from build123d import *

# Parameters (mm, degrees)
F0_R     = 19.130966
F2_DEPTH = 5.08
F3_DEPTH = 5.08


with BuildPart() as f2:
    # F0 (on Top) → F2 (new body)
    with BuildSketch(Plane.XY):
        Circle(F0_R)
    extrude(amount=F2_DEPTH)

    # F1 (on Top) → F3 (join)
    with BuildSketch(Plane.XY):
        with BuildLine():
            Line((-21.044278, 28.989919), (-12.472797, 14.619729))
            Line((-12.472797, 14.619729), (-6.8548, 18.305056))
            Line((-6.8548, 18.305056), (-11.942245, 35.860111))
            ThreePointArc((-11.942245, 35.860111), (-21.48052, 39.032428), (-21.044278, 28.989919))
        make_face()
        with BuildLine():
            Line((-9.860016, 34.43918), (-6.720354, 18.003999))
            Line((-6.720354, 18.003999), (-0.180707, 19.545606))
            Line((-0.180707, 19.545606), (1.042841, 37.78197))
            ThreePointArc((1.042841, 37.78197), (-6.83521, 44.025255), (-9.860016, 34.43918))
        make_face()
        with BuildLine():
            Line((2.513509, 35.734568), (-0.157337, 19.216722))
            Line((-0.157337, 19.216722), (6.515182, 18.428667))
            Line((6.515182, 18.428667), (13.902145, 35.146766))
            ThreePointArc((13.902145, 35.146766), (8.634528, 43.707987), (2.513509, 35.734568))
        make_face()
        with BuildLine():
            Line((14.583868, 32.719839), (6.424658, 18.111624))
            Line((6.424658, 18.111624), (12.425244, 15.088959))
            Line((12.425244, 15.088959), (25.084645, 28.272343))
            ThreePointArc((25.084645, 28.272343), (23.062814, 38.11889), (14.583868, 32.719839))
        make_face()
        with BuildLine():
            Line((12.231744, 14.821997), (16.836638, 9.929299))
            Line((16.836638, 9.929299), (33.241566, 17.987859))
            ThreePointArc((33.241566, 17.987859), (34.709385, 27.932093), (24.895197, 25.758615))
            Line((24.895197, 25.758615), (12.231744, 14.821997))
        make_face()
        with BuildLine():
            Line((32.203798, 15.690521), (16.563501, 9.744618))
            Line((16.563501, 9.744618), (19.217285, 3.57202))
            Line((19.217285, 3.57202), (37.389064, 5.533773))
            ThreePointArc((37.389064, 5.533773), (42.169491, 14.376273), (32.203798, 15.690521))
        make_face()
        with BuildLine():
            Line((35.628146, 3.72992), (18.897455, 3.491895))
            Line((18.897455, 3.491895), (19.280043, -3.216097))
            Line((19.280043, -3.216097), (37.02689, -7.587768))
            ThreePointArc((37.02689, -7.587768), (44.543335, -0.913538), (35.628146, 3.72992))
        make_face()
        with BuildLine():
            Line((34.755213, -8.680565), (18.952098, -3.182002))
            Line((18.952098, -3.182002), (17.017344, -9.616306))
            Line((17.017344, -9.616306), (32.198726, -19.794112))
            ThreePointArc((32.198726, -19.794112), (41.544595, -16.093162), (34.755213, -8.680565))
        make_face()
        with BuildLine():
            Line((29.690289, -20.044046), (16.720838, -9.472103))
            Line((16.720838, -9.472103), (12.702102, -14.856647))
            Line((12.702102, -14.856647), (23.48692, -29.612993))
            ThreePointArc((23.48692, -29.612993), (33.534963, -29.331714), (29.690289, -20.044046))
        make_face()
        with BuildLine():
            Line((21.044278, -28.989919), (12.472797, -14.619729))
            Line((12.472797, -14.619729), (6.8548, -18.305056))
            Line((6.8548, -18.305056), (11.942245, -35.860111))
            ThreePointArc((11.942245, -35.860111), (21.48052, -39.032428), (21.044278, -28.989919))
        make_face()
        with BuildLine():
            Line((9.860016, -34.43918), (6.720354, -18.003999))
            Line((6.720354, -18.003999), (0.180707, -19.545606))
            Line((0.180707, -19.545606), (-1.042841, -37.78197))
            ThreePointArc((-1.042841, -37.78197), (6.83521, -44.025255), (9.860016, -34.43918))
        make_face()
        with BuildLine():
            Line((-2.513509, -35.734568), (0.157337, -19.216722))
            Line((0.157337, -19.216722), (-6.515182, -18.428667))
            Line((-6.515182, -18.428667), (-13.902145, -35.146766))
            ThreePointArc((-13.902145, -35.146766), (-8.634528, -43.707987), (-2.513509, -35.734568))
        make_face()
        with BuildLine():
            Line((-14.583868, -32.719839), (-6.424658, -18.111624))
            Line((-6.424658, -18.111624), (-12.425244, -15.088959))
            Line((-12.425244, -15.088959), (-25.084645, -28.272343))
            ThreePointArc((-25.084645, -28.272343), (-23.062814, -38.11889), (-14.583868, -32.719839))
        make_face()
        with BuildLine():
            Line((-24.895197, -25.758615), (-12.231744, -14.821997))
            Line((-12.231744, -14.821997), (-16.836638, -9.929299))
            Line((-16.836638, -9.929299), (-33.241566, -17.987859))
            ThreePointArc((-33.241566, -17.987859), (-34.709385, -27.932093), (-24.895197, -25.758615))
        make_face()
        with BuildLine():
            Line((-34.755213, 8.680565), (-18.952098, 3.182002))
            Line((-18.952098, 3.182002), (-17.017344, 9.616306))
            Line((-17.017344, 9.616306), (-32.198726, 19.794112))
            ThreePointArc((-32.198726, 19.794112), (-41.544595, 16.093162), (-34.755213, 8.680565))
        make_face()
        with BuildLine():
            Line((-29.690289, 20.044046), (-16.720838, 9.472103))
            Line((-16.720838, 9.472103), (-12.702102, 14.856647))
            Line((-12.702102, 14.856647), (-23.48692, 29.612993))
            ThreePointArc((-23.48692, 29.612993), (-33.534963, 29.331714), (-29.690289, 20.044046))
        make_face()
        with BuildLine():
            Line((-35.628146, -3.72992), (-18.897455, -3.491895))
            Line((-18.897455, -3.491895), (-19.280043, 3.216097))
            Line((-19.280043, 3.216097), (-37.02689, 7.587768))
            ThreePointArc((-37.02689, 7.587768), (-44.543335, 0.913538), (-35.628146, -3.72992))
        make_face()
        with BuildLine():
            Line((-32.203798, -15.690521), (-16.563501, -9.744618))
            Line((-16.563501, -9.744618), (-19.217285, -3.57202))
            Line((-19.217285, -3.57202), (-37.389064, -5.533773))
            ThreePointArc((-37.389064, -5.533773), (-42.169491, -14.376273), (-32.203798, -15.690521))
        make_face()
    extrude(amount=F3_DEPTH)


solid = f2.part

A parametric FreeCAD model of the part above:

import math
import FreeCAD as App
import Part
import Sketcher
Q = App.Units.Quantity

doc = App.newDocument("Part")
body = doc.addObject("PartDesign::Body", "Body")

# Sketch on XY plane
sketch1 = doc.addObject("Sketcher::SketchObject", "Sketch")
body.addObject(sketch1)
sketch1.AttachmentSupport = (doc.XY_Plane, [""])
sketch1.MapMode = "FlatFace"
sketch1.addGeometry(Part.Circle(App.Vector(0, 0, 0), App.Vector(0, 0, 1), 19), False)
sketch1.addConstraint(Sketcher.Constraint("Coincident", 0, 3, -1, 1))
sketch1.addConstraint(Sketcher.Constraint("Diameter", 0, Q("38.261932 mm")))
pad1 = doc.addObject("PartDesign::Pad", "Pad")
body.addObject(pad1)
pad1.Profile = sketch1
pad1.Length = Q("0.2 in")

# Sketch on XY plane
sketch2 = doc.addObject("Sketcher::SketchObject", "Sketch001")
body.addObject(sketch2)
sketch2.AttachmentSupport = (doc.XY_Plane, [""])
sketch2.MapMode = "FlatFace"
sketch2.addGeometry(Part.LineSegment(App.Vector(-21.044278, 28.989919, 0), App.Vector(-12.472797, 14.619729, 0)), False)
sketch2.addGeometry(Part.LineSegment(App.Vector(-12.472797, 14.619729, 0), App.Vector(-6.8548, 18.305056, 0)), False)
sketch2.addGeometry(Part.LineSegment(App.Vector(-6.8548, 18.305056, 0), App.Vector(-11.942245, 35.860111, 0)), False)
sketch2.addGeometry(Part.ArcOfCircle(Part.Circle(App.Vector(-17.803888, 34.16141, 0), App.Vector(0, 0, 1), 6.102823), math.radians(16.161563), math.radians(237.929266)), False)
sketch2.addGeometry(Part.LineSegment(App.Vector(-9.860016, 34.43918, 0), App.Vector(-6.720354, 18.003999, 0)), False)
sketch2.addGeometry(Part.LineSegment(App.Vector(-6.720354, 18.003999, 0), App.Vector(-0.180707, 19.545606, 0)), False)
sketch2.addGeometry(Part.LineSegment(App.Vector(-0.180707, 19.545606, 0), App.Vector(1.042841, 37.78197, 0)), False)
sketch2.addGeometry(Part.ArcOfCircle(Part.Circle(App.Vector(-5.046292, 38.190513, 0), App.Vector(0, 0, 1), 6.102823), math.radians(-3.838439), math.radians(217.929269)), False)
sketch2.addGeometry(Part.LineSegment(App.Vector(2.513509, 35.734568, 0), App.Vector(-0.157337, 19.216722, 0)), False)
sketch2.addGeometry(Part.LineSegment(App.Vector(-0.157337, 19.216722, 0), App.Vector(6.515182, 18.428667, 0)), False)
sketch2.addGeometry(Part.LineSegment(App.Vector(6.515182, 18.428667, 0), App.Vector(13.902145, 35.146766, 0)), False)
sketch2.addGeometry(Part.ArcOfCircle(Part.Circle(App.Vector(8.319962, 37.613277, 0), App.Vector(0, 0, 1), 6.102823), math.radians(-23.838439), math.radians(197.929265)), False)
sketch2.addGeometry(Part.LineSegment(App.Vector(14.583868, 32.719839, 0), App.Vector(6.424658, 18.111624, 0)), False)
sketch2.addGeometry(Part.LineSegment(App.Vector(6.424658, 18.111624, 0), App.Vector(12.425244, 15.088959, 0)), False)
sketch2.addGeometry(Part.LineSegment(App.Vector(12.425244, 15.088959, 0), App.Vector(25.084645, 28.272343, 0)), False)
sketch2.addGeometry(Part.ArcOfCircle(Part.Circle(App.Vector(20.682705, 32.499324, 0), App.Vector(0, 0, 1), 6.102822), math.radians(-43.838437), math.radians(177.929263)), False)
sketch2.addGeometry(Part.LineSegment(App.Vector(12.231744, 14.821997, 0), App.Vector(16.836638, 9.929299, 0)), False)
sketch2.addGeometry(Part.LineSegment(App.Vector(16.836638, 9.929299, 0), App.Vector(33.241566, 17.987859, 0)), False)
sketch2.addGeometry(Part.ArcOfCircle(Part.Circle(App.Vector(30.550809, 23.465474, 0), App.Vector(0, 0, 1), 6.102822), math.radians(-63.838443), math.radians(157.92927)), False)
sketch2.addGeometry(Part.LineSegment(App.Vector(24.895197, 25.758615, 0), App.Vector(12.231744, 14.821997, 0)), False)
sketch2.addGeometry(Part.LineSegment(App.Vector(32.203798, 15.690521, 0), App.Vector(16.563501, 9.744618, 0)), False)
sketch2.addGeometry(Part.LineSegment(App.Vector(16.563501, 9.744618, 0), App.Vector(19.217285, 3.57202, 0)), False)
sketch2.addGeometry(Part.LineSegment(App.Vector(19.217285, 3.57202, 0), App.Vector(37.389064, 5.533773, 0)), False)
sketch2.addGeometry(Part.ArcOfCircle(Part.Circle(App.Vector(36.734034, 11.60134, 0), App.Vector(0, 0, 1), 6.102822), math.radians(-83.838446), math.radians(137.929272)), False)
sketch2.addGeometry(Part.LineSegment(App.Vector(35.628146, 3.72992, 0), App.Vector(18.897455, 3.491895, 0)), False)
sketch2.addGeometry(Part.LineSegment(App.Vector(18.897455, 3.491895, 0), App.Vector(19.280043, -3.216097, 0)), False)
sketch2.addGeometry(Part.LineSegment(App.Vector(19.280043, -3.216097, 0), App.Vector(37.02689, -7.587768, 0)), False)
sketch2.addGeometry(Part.ArcOfCircle(Part.Circle(App.Vector(38.486593, -1.662086, 0), App.Vector(0, 0, 1), 6.102823), math.radians(-103.838439), math.radians(117.929265)), False)
sketch2.addGeometry(Part.LineSegment(App.Vector(34.755213, -8.680565, 0), App.Vector(18.952098, -3.182002, 0)), False)
sketch2.addGeometry(Part.LineSegment(App.Vector(18.952098, -3.182002, 0), App.Vector(17.017344, -9.616306, 0)), False)
sketch2.addGeometry(Part.LineSegment(App.Vector(17.017344, -9.616306, 0), App.Vector(32.198726, -19.794112, 0)), False)
sketch2.addGeometry(Part.ArcOfCircle(Part.Circle(App.Vector(35.597101, -14.725039, 0), App.Vector(0, 0, 1), 6.102823), math.radians(-123.838435), math.radians(97.929271)), False)
sketch2.addGeometry(Part.LineSegment(App.Vector(29.690289, -20.044046, 0), App.Vector(16.720838, -9.472103, 0)), False)
sketch2.addGeometry(Part.LineSegment(App.Vector(16.720838, -9.472103, 0), App.Vector(12.702102, -14.856647, 0)), False)
sketch2.addGeometry(Part.LineSegment(App.Vector(12.702102, -14.856647, 0), App.Vector(23.48692, -29.612993, 0)), False)
sketch2.addGeometry(Part.ArcOfCircle(Part.Circle(App.Vector(28.414073, -26.011936, 0), App.Vector(0, 0, 1), 6.102823), math.radians(-143.83844), math.radians(77.929269)), False)
sketch2.addGeometry(Part.LineSegment(App.Vector(21.044278, -28.989919, 0), App.Vector(12.472797, -14.619729, 0)), False)
sketch2.addGeometry(Part.LineSegment(App.Vector(12.472797, -14.619729, 0), App.Vector(6.8548, -18.305056, 0)), False)
sketch2.addGeometry(Part.LineSegment(App.Vector(6.8548, -18.305056, 0), App.Vector(11.942245, -35.860111, 0)), False)
sketch2.addGeometry(Part.ArcOfCircle(Part.Circle(App.Vector(17.803888, -34.16141, 0), App.Vector(0, 0, 1), 6.102823), math.radians(-163.838437), math.radians(57.929266)), False)
sketch2.addGeometry(Part.LineSegment(App.Vector(9.860016, -34.43918, 0), App.Vector(6.720354, -18.003999, 0)), False)
sketch2.addGeometry(Part.LineSegment(App.Vector(6.720354, -18.003999, 0), App.Vector(0.180707, -19.545606, 0)), False)
sketch2.addGeometry(Part.LineSegment(App.Vector(0.180707, -19.545606, 0), App.Vector(-1.042841, -37.78197, 0)), False)
sketch2.addGeometry(Part.ArcOfCircle(Part.Circle(App.Vector(5.046292, -38.190513, 0), App.Vector(0, 0, 1), 6.102823), math.radians(176.161561), math.radians(397.929269)), False)
sketch2.addGeometry(Part.LineSegment(App.Vector(-2.513509, -35.734568, 0), App.Vector(0.157337, -19.216722, 0)), False)
sketch2.addGeometry(Part.LineSegment(App.Vector(0.157337, -19.216722, 0), App.Vector(-6.515182, -18.428667, 0)), False)
sketch2.addGeometry(Part.LineSegment(App.Vector(-6.515182, -18.428667, 0), App.Vector(-13.902145, -35.146766, 0)), False)
sketch2.addGeometry(Part.ArcOfCircle(Part.Circle(App.Vector(-8.319962, -37.613277, 0), App.Vector(0, 0, 1), 6.102823), math.radians(156.161561), math.radians(377.929265)), False)
sketch2.addGeometry(Part.LineSegment(App.Vector(-14.583868, -32.719839, 0), App.Vector(-6.424658, -18.111624, 0)), False)
sketch2.addGeometry(Part.LineSegment(App.Vector(-6.424658, -18.111624, 0), App.Vector(-12.425244, -15.088959, 0)), False)
sketch2.addGeometry(Part.LineSegment(App.Vector(-12.425244, -15.088959, 0), App.Vector(-25.084645, -28.272343, 0)), False)
sketch2.addGeometry(Part.ArcOfCircle(Part.Circle(App.Vector(-20.682705, -32.499324, 0), App.Vector(0, 0, 1), 6.102822), math.radians(136.161563), math.radians(357.929263)), False)
sketch2.addGeometry(Part.LineSegment(App.Vector(-24.895197, -25.758615, 0), App.Vector(-12.231744, -14.821997, 0)), False)
sketch2.addGeometry(Part.LineSegment(App.Vector(-12.231744, -14.821997, 0), App.Vector(-16.836638, -9.929299, 0)), False)
sketch2.addGeometry(Part.LineSegment(App.Vector(-16.836638, -9.929299, 0), App.Vector(-33.241566, -17.987859, 0)), False)
sketch2.addGeometry(Part.ArcOfCircle(Part.Circle(App.Vector(-30.550809, -23.465474, 0), App.Vector(0, 0, 1), 6.102822), math.radians(116.161557), math.radians(337.92927)), False)
sketch2.addGeometry(Part.LineSegment(App.Vector(-34.755213, 8.680565, 0), App.Vector(-18.952098, 3.182002, 0)), False)
sketch2.addGeometry(Part.LineSegment(App.Vector(-18.952098, 3.182002, 0), App.Vector(-17.017344, 9.616306, 0)), False)
sketch2.addGeometry(Part.LineSegment(App.Vector(-17.017344, 9.616306, 0), App.Vector(-32.198726, 19.794112, 0)), False)
sketch2.addGeometry(Part.ArcOfCircle(Part.Circle(App.Vector(-35.597101, 14.725039, 0), App.Vector(0, 0, 1), 6.102823), math.radians(56.161565), math.radians(277.929271)), False)
sketch2.addGeometry(Part.LineSegment(App.Vector(-29.690289, 20.044046, 0), App.Vector(-16.720838, 9.472103, 0)), False)
sketch2.addGeometry(Part.LineSegment(App.Vector(-16.720838, 9.472103, 0), App.Vector(-12.702102, 14.856647, 0)), False)
sketch2.addGeometry(Part.LineSegment(App.Vector(-12.702102, 14.856647, 0), App.Vector(-23.48692, 29.612993, 0)), False)
sketch2.addGeometry(Part.ArcOfCircle(Part.Circle(App.Vector(-28.414073, 26.011936, 0), App.Vector(0, 0, 1), 6.102823), math.radians(36.16156), math.radians(257.929269)), False)
sketch2.addGeometry(Part.LineSegment(App.Vector(-35.628146, -3.72992, 0), App.Vector(-18.897455, -3.491895, 0)), False)
sketch2.addGeometry(Part.LineSegment(App.Vector(-18.897455, -3.491895, 0), App.Vector(-19.280043, 3.216097, 0)), False)
sketch2.addGeometry(Part.LineSegment(App.Vector(-19.280043, 3.216097, 0), App.Vector(-37.02689, 7.587768, 0)), False)
sketch2.addGeometry(Part.ArcOfCircle(Part.Circle(App.Vector(-38.486593, 1.662086, 0), App.Vector(0, 0, 1), 6.102823), math.radians(76.161561), math.radians(297.929265)), False)
sketch2.addGeometry(Part.LineSegment(App.Vector(-32.203798, -15.690521, 0), App.Vector(-16.563501, -9.744618, 0)), False)
sketch2.addGeometry(Part.LineSegment(App.Vector(-16.563501, -9.744618, 0), App.Vector(-19.217285, -3.57202, 0)), False)
sketch2.addGeometry(Part.LineSegment(App.Vector(-19.217285, -3.57202, 0), App.Vector(-37.389064, -5.533773, 0)), False)
sketch2.addGeometry(Part.ArcOfCircle(Part.Circle(App.Vector(-36.734034, -11.60134, 0), App.Vector(0, 0, 1), 6.102822), math.radians(96.161554), math.radians(317.929272)), False)
sketch2.addConstraint(Sketcher.Constraint("Coincident", 0, 2, 1, 1))
sketch2.addConstraint(Sketcher.Constraint("Coincident", 1, 2, 2, 1))
sketch2.addConstraint(Sketcher.Constraint("Coincident", 2, 2, 3, 1))
sketch2.addConstraint(Sketcher.Constraint("Coincident", 3, 2, 0, 1))
sketch2.addConstraint(Sketcher.Constraint("Coincident", 4, 2, 5, 1))
sketch2.addConstraint(Sketcher.Constraint("Coincident", 5, 2, 6, 1))
sketch2.addConstraint(Sketcher.Constraint("Coincident", 6, 2, 7, 1))
sketch2.addConstraint(Sketcher.Constraint("Coincident", 7, 2, 4, 1))
sketch2.addConstraint(Sketcher.Constraint("Coincident", 8, 2, 9, 1))
sketch2.addConstraint(Sketcher.Constraint("Coincident", 9, 2, 10, 1))
sketch2.addConstraint(Sketcher.Constraint("Coincident", 10, 2, 11, 1))
sketch2.addConstraint(Sketcher.Constraint("Coincident", 11, 2, 8, 1))
sketch2.addConstraint(Sketcher.Constraint("Coincident", 12, 2, 13, 1))
sketch2.addConstraint(Sketcher.Constraint("Coincident", 13, 2, 14, 1))
sketch2.addConstraint(Sketcher.Constraint("Coincident", 14, 2, 15, 1))
sketch2.addConstraint(Sketcher.Constraint("Coincident", 15, 2, 12, 1))
sketch2.addConstraint(Sketcher.Constraint("Coincident", 16, 2, 17, 1))
sketch2.addConstraint(Sketcher.Constraint("Coincident", 17, 2, 18, 1))
sketch2.addConstraint(Sketcher.Constraint("Coincident", 18, 2, 19, 1))
sketch2.addConstraint(Sketcher.Constraint("Coincident", 19, 2, 16, 1))
sketch2.addConstraint(Sketcher.Constraint("Coincident", 20, 2, 21, 1))
sketch2.addConstraint(Sketcher.Constraint("Coincident", 21, 2, 22, 1))
sketch2.addConstraint(Sketcher.Constraint("Coincident", 22, 2, 23, 1))
sketch2.addConstraint(Sketcher.Constraint("Coincident", 23, 2, 20, 1))
sketch2.addConstraint(Sketcher.Constraint("Coincident", 24, 2, 25, 1))
sketch2.addConstraint(Sketcher.Constraint("Coincident", 25, 2, 26, 1))
sketch2.addConstraint(Sketcher.Constraint("Coincident", 26, 2, 27, 1))
sketch2.addConstraint(Sketcher.Constraint("Coincident", 27, 2, 24, 1))
sketch2.addConstraint(Sketcher.Constraint("Coincident", 28, 2, 29, 1))
sketch2.addConstraint(Sketcher.Constraint("Coincident", 29, 2, 30, 1))
sketch2.addConstraint(Sketcher.Constraint("Coincident", 30, 2, 31, 1))
sketch2.addConstraint(Sketcher.Constraint("Coincident", 31, 2, 28, 1))
sketch2.addConstraint(Sketcher.Constraint("Coincident", 32, 2, 33, 1))
sketch2.addConstraint(Sketcher.Constraint("Coincident", 33, 2, 34, 1))
sketch2.addConstraint(Sketcher.Constraint("Coincident", 34, 2, 35, 1))
sketch2.addConstraint(Sketcher.Constraint("Coincident", 35, 2, 32, 1))
sketch2.addConstraint(Sketcher.Constraint("Coincident", 36, 2, 37, 1))
sketch2.addConstraint(Sketcher.Constraint("Coincident", 37, 2, 38, 1))
sketch2.addConstraint(Sketcher.Constraint("Coincident", 38, 2, 39, 1))
sketch2.addConstraint(Sketcher.Constraint("Coincident", 39, 2, 36, 1))
sketch2.addConstraint(Sketcher.Constraint("Coincident", 40, 2, 41, 1))
sketch2.addConstraint(Sketcher.Constraint("Coincident", 41, 2, 42, 1))
sketch2.addConstraint(Sketcher.Constraint("Coincident", 42, 2, 43, 1))
sketch2.addConstraint(Sketcher.Constraint("Coincident", 43, 2, 40, 1))
sketch2.addConstraint(Sketcher.Constraint("Coincident", 44, 2, 45, 1))
sketch2.addConstraint(Sketcher.Constraint("Coincident", 45, 2, 46, 1))
sketch2.addConstraint(Sketcher.Constraint("Coincident", 46, 2, 47, 1))
sketch2.addConstraint(Sketcher.Constraint("Coincident", 47, 2, 44, 1))
sketch2.addConstraint(Sketcher.Constraint("Coincident", 48, 2, 49, 1))
sketch2.addConstraint(Sketcher.Constraint("Coincident", 49, 2, 50, 1))
sketch2.addConstraint(Sketcher.Constraint("Coincident", 50, 2, 51, 1))
sketch2.addConstraint(Sketcher.Constraint("Coincident", 51, 2, 48, 1))
sketch2.addConstraint(Sketcher.Constraint("Coincident", 52, 2, 53, 1))
sketch2.addConstraint(Sketcher.Constraint("Coincident", 53, 2, 54, 1))
sketch2.addConstraint(Sketcher.Constraint("Coincident", 54, 2, 55, 1))
sketch2.addConstraint(Sketcher.Constraint("Coincident", 55, 2, 52, 1))
sketch2.addConstraint(Sketcher.Constraint("Coincident", 56, 2, 57, 1))
sketch2.addConstraint(Sketcher.Constraint("Coincident", 57, 2, 58, 1))
sketch2.addConstraint(Sketcher.Constraint("Coincident", 58, 2, 59, 1))
sketch2.addConstraint(Sketcher.Constraint("Coincident", 59, 2, 56, 1))
sketch2.addConstraint(Sketcher.Constraint("Coincident", 60, 2, 61, 1))
sketch2.addConstraint(Sketcher.Constraint("Coincident", 61, 2, 62, 1))
sketch2.addConstraint(Sketcher.Constraint("Coincident", 62, 2, 63, 1))
sketch2.addConstraint(Sketcher.Constraint("Coincident", 63, 2, 60, 1))
sketch2.addConstraint(Sketcher.Constraint("Coincident", 64, 2, 65, 1))
sketch2.addConstraint(Sketcher.Constraint("Coincident", 65, 2, 66, 1))
sketch2.addConstraint(Sketcher.Constraint("Coincident", 66, 2, 67, 1))
sketch2.addConstraint(Sketcher.Constraint("Coincident", 67, 2, 64, 1))
sketch2.addConstraint(Sketcher.Constraint("Coincident", 68, 2, 69, 1))
sketch2.addConstraint(Sketcher.Constraint("Coincident", 69, 2, 70, 1))
sketch2.addConstraint(Sketcher.Constraint("Coincident", 70, 2, 71, 1))
sketch2.addConstraint(Sketcher.Constraint("Coincident", 71, 2, 68, 1))
sketch2.addConstraint(Sketcher.Constraint("Radius", 3, Q("6.102823 mm")))
sketch2.addConstraint(Sketcher.Constraint("Radius", 7, Q("6.102823 mm")))
sketch2.addConstraint(Sketcher.Constraint("Radius", 11, Q("6.102823 mm")))
sketch2.addConstraint(Sketcher.Constraint("Radius", 15, Q("6.102822 mm")))
sketch2.addConstraint(Sketcher.Constraint("Radius", 18, Q("6.102822 mm")))
sketch2.addConstraint(Sketcher.Constraint("Radius", 23, Q("6.102822 mm")))
sketch2.addConstraint(Sketcher.Constraint("Radius", 27, Q("6.102823 mm")))
sketch2.addConstraint(Sketcher.Constraint("Radius", 31, Q("6.102823 mm")))
sketch2.addConstraint(Sketcher.Constraint("Radius", 35, Q("6.102823 mm")))
sketch2.addConstraint(Sketcher.Constraint("Radius", 39, Q("6.102823 mm")))
sketch2.addConstraint(Sketcher.Constraint("Radius", 43, Q("6.102823 mm")))
sketch2.addConstraint(Sketcher.Constraint("Radius", 47, Q("6.102823 mm")))
sketch2.addConstraint(Sketcher.Constraint("Radius", 51, Q("6.102822 mm")))
sketch2.addConstraint(Sketcher.Constraint("Radius", 55, Q("6.102822 mm")))
sketch2.addConstraint(Sketcher.Constraint("Radius", 59, Q("6.102823 mm")))
sketch2.addConstraint(Sketcher.Constraint("Radius", 63, Q("6.102823 mm")))
sketch2.addConstraint(Sketcher.Constraint("Radius", 67, Q("6.102823 mm")))
sketch2.addConstraint(Sketcher.Constraint("Radius", 71, Q("6.102822 mm")))
sketch2.addConstraint(Sketcher.Constraint("DistanceX", -1, 1, 31, 3, Q("35.597101 mm")))
sketch2.addConstraint(Sketcher.Constraint("DistanceX", 59, 3, -1, 1, Q("35.597101 mm")))
sketch2.addConstraint(Sketcher.Constraint("DistanceX", 1, 2, -1, 1, Q("6.8548 mm")))
sketch2.addConstraint(Sketcher.Constraint("DistanceY", -1, 1, 4, 2, Q("18.003999 mm")))
sketch2.addConstraint(Sketcher.Constraint("DistanceY", -1, 1, 16, 2, Q("9.929299 mm")))
sketch2.addConstraint(Sketcher.Constraint("DistanceX", -1, 1, 20, 2, Q("16.563501 mm")))
sketch2.addConstraint(Sketcher.Constraint("DistanceX", -1, 1, 37, 2, Q("6.8548 mm")))
sketch2.addConstraint(Sketcher.Constraint("DistanceY", 40, 2, -1, 1, Q("18.003999 mm")))
sketch2.addConstraint(Sketcher.Constraint("DistanceY", 53, 2, -1, 1, Q("9.929299 mm")))
sketch2.addConstraint(Sketcher.Constraint("DistanceX", 68, 2, -1, 1, Q("16.563501 mm")))
sketch2.addConstraint(Sketcher.Constraint("DistanceY", -1, 1, 3, 3, Q("34.16141 mm")))
sketch2.addConstraint(Sketcher.Constraint("DistanceX", 7, 3, -1, 1, Q("5.046292 mm")))
sketch2.addConstraint(Sketcher.Constraint("DistanceX", -1, 1, 11, 3, Q("8.319962 mm")))
sketch2.addConstraint(Sketcher.Constraint("DistanceX", -1, 1, 18, 3, Q("30.550809 mm")))
sketch2.addConstraint(Sketcher.Constraint("DistanceY", -1, 1, 23, 3, Q("11.60134 mm")))
sketch2.addConstraint(Sketcher.Constraint("DistanceY", 31, 3, -1, 1, Q("14.725039 mm")))
sketch2.addConstraint(Sketcher.Constraint("DistanceY", 39, 3, -1, 1, Q("34.16141 mm")))
sketch2.addConstraint(Sketcher.Constraint("DistanceX", -1, 1, 43, 3, Q("5.046292 mm")))
sketch2.addConstraint(Sketcher.Constraint("DistanceX", 47, 3, -1, 1, Q("8.319962 mm")))
sketch2.addConstraint(Sketcher.Constraint("DistanceX", 55, 3, -1, 1, Q("30.550809 mm")))
sketch2.addConstraint(Sketcher.Constraint("DistanceY", -1, 1, 59, 3, Q("14.725039 mm")))
sketch2.addConstraint(Sketcher.Constraint("DistanceY", 71, 3, -1, 1, Q("11.60134 mm")))
sketch2.addConstraint(Sketcher.Constraint("DistanceY", -1, 1, 0, 2, Q("14.619729 mm")))
sketch2.addConstraint(Sketcher.Constraint("DistanceY", -1, 1, 2, 2, Q("35.860111 mm")))
sketch2.addConstraint(Sketcher.Constraint("DistanceX", 3, 2, -1, 1, Q("21.044278 mm")))
sketch2.addConstraint(Sketcher.Constraint("DistanceY", -1, 1, 3, 2, Q("28.989919 mm")))
sketch2.addConstraint(Sketcher.Constraint("DistanceX", -1, 1, 6, 2, Q("1.042841 mm")))
sketch2.addConstraint(Sketcher.Constraint("DistanceY", -1, 1, 6, 2, Q("37.78197 mm")))
sketch2.addConstraint(Sketcher.Constraint("DistanceY", -1, 1, 7, 2, Q("34.43918 mm")))
sketch2.addConstraint(Sketcher.Constraint("DistanceX", -1, 1, 11, 2, Q("2.513509 mm")))
sketch2.addConstraint(Sketcher.Constraint("DistanceY", -1, 1, 11, 2, Q("35.734568 mm")))
sketch2.addConstraint(Sketcher.Constraint("DistanceY", -1, 1, 13, 2, Q("15.088959 mm")))
sketch2.addConstraint(Sketcher.Constraint("DistanceX", -1, 1, 15, 2, Q("14.583868 mm")))
sketch2.addConstraint(Sketcher.Constraint("DistanceY", -1, 1, 15, 2, Q("32.719839 mm")))
sketch2.addConstraint(Sketcher.Constraint("DistanceX", -1, 1, 16, 2, Q("16.836638 mm")))
sketch2.addConstraint(Sketcher.Constraint("DistanceY", -1, 1, 17, 2, Q("17.987859 mm")))
sketch2.addConstraint(Sketcher.Constraint("DistanceY", -1, 1, 21, 2, Q("3.57202 mm")))
sketch2.addConstraint(Sketcher.Constraint("DistanceY", -1, 1, 23, 2, Q("15.690521 mm")))
sketch2.addConstraint(Sketcher.Constraint("DistanceX", -1, 1, 26, 2, Q("37.02689 mm")))
sketch2.addConstraint(Sketcher.Constraint("DistanceY", -1, 1, 27, 2, Q("3.72992 mm")))
sketch2.addConstraint(Sketcher.Constraint("DistanceY", 30, 2, -1, 1, Q("19.794112 mm")))
sketch2.addConstraint(Sketcher.Constraint("DistanceX", -1, 1, 32, 2, Q("16.720838 mm")))
sketch2.addConstraint(Sketcher.Constraint("DistanceX", -1, 1, 34, 2, Q("23.48692 mm")))
sketch2.addConstraint(Sketcher.Constraint("DistanceX", -1, 1, 35, 2, Q("29.690289 mm")))
sketch2.addConstraint(Sketcher.Constraint("DistanceY", 36, 2, -1, 1, Q("14.619729 mm")))
sketch2.addConstraint(Sketcher.Constraint("DistanceY", 38, 2, -1, 1, Q("35.860111 mm")))
sketch2.addConstraint(Sketcher.Constraint("DistanceX", -1, 1, 39, 2, Q("21.044278 mm")))
sketch2.addConstraint(Sketcher.Constraint("DistanceY", 39, 2, -1, 1, Q("28.989919 mm")))
sketch2.addConstraint(Sketcher.Constraint("DistanceX", 42, 2, -1, 1, Q("1.042841 mm")))
sketch2.addConstraint(Sketcher.Constraint("DistanceY", 42, 2, -1, 1, Q("37.78197 mm")))
sketch2.addConstraint(Sketcher.Constraint("DistanceY", 43, 2, -1, 1, Q("34.43918 mm")))
sketch2.addConstraint(Sketcher.Constraint("DistanceX", 47, 2, -1, 1, Q("2.513509 mm")))
sketch2.addConstraint(Sketcher.Constraint("DistanceY", 47, 2, -1, 1, Q("35.734568 mm")))
sketch2.addConstraint(Sketcher.Constraint("DistanceY", 49, 2, -1, 1, Q("15.088959 mm")))
sketch2.addConstraint(Sketcher.Constraint("DistanceX", 51, 2, -1, 1, Q("14.583868 mm")))
sketch2.addConstraint(Sketcher.Constraint("DistanceY", 51, 2, -1, 1, Q("32.719839 mm")))
sketch2.addConstraint(Sketcher.Constraint("DistanceX", 53, 2, -1, 1, Q("16.836638 mm")))
sketch2.addConstraint(Sketcher.Constraint("DistanceY", 54, 2, -1, 1, Q("17.987859 mm")))
sketch2.addConstraint(Sketcher.Constraint("DistanceY", -1, 1, 58, 2, Q("19.794112 mm")))
sketch2.addConstraint(Sketcher.Constraint("DistanceX", 60, 2, -1, 1, Q("16.720838 mm")))
sketch2.addConstraint(Sketcher.Constraint("DistanceX", 62, 2, -1, 1, Q("23.48692 mm")))
sketch2.addConstraint(Sketcher.Constraint("DistanceX", 63, 2, -1, 1, Q("29.690289 mm")))
sketch2.addConstraint(Sketcher.Constraint("DistanceX", 66, 2, -1, 1, Q("37.02689 mm")))
sketch2.addConstraint(Sketcher.Constraint("DistanceY", 67, 2, -1, 1, Q("3.72992 mm")))
sketch2.addConstraint(Sketcher.Constraint("DistanceY", 69, 2, -1, 1, Q("3.57202 mm")))
sketch2.addConstraint(Sketcher.Constraint("DistanceY", 71, 2, -1, 1, Q("15.690521 mm")))
sketch2.addConstraint(Sketcher.Constraint("Distance", 0, Q("16.732383 mm")))
sketch2.addConstraint(Sketcher.Constraint("Distance", 1, Q("6.718893 mm")))
sketch2.addConstraint(Sketcher.Constraint("Distance", 4, Q("16.732383 mm")))
sketch2.addConstraint(Sketcher.Constraint("Distance", 5, Q("6.718894 mm")))
sketch2.addConstraint(Sketcher.Constraint("Distance", 6, Q("18.277364 mm")))
sketch2.addConstraint(Sketcher.Constraint("Distance", 8, Q("16.732383 mm")))
sketch2.addConstraint(Sketcher.Constraint("Distance", 9, Q("6.718894 mm")))
sketch2.addConstraint(Sketcher.Constraint("Distance", 10, Q("18.277365 mm")))
sketch2.addConstraint(Sketcher.Constraint("Distance", 12, Q("16.732383 mm")))
sketch2.addConstraint(Sketcher.Constraint("Distance", 13, Q("6.718894 mm")))
sketch2.addConstraint(Sketcher.Constraint("Distance", 14, Q("18.277364 mm")))
sketch2.addConstraint(Sketcher.Constraint("Distance", 16, Q("6.718894 mm")))
sketch2.addConstraint(Sketcher.Constraint("Distance", 17, Q("18.277364 mm")))
sketch2.addConstraint(Sketcher.Constraint("Distance", 19, Q("16.732383 mm")))
sketch2.addConstraint(Sketcher.Constraint("Distance", 20, Q("16.732383 mm")))
sketch2.addConstraint(Sketcher.Constraint("Distance", 21, Q("6.718894 mm")))
sketch2.addConstraint(Sketcher.Constraint("Distance", 22, Q("18.277364 mm")))
sketch2.addConstraint(Sketcher.Constraint("Distance", 24, Q("16.732384 mm")))
sketch2.addConstraint(Sketcher.Constraint("Distance", 25, Q("6.718894 mm")))
sketch2.addConstraint(Sketcher.Constraint("Distance", 26, Q("18.277365 mm")))
sketch2.addConstraint(Sketcher.Constraint("Distance", 28, Q("16.732383 mm")))
sketch2.addConstraint(Sketcher.Constraint("Distance", 29, Q("6.718894 mm")))
sketch2.addConstraint(Sketcher.Constraint("Distance", 30, Q("18.277366 mm")))
sketch2.addConstraint(Sketcher.Constraint("Distance", 32, Q("16.732383 mm")))
sketch2.addConstraint(Sketcher.Constraint("Distance", 33, Q("6.718895 mm")))
sketch2.addConstraint(Sketcher.Constraint("Distance", 34, Q("18.277364 mm")))
sketch2.addConstraint(Sketcher.Constraint("Distance", 36, Q("16.732383 mm")))
sketch2.addConstraint(Sketcher.Constraint("Distance", 37, Q("6.718893 mm")))
sketch2.addConstraint(Sketcher.Constraint("Distance", 40, Q("16.732383 mm")))
sketch2.addConstraint(Sketcher.Constraint("Distance", 41, Q("6.718894 mm")))
sketch2.addConstraint(Sketcher.Constraint("Distance", 42, Q("18.277364 mm")))
sketch2.addConstraint(Sketcher.Constraint("Distance", 44, Q("16.732383 mm")))
sketch2.addConstraint(Sketcher.Constraint("Distance", 45, Q("6.718894 mm")))
sketch2.addConstraint(Sketcher.Constraint("Distance", 46, Q("18.277365 mm")))
sketch2.addConstraint(Sketcher.Constraint("Distance", 48, Q("16.732383 mm")))
sketch2.addConstraint(Sketcher.Constraint("Distance", 49, Q("6.718894 mm")))
sketch2.addConstraint(Sketcher.Constraint("Distance", 50, Q("18.277364 mm")))
sketch2.addConstraint(Sketcher.Constraint("Distance", 52, Q("16.732383 mm")))
sketch2.addConstraint(Sketcher.Constraint("Distance", 53, Q("6.718894 mm")))
sketch2.addConstraint(Sketcher.Constraint("Distance", 54, Q("18.277364 mm")))
sketch2.addConstraint(Sketcher.Constraint("Distance", 56, Q("16.732383 mm")))
sketch2.addConstraint(Sketcher.Constraint("Distance", 57, Q("6.718894 mm")))
sketch2.addConstraint(Sketcher.Constraint("Distance", 58, Q("18.277366 mm")))
sketch2.addConstraint(Sketcher.Constraint("Distance", 60, Q("16.732383 mm")))
sketch2.addConstraint(Sketcher.Constraint("Distance", 61, Q("6.718895 mm")))
sketch2.addConstraint(Sketcher.Constraint("Distance", 62, Q("18.277364 mm")))
sketch2.addConstraint(Sketcher.Constraint("Distance", 64, Q("16.732384 mm")))
sketch2.addConstraint(Sketcher.Constraint("Distance", 65, Q("6.718894 mm")))
sketch2.addConstraint(Sketcher.Constraint("Distance", 66, Q("18.277365 mm")))
sketch2.addConstraint(Sketcher.Constraint("Distance", 68, Q("16.732383 mm")))
sketch2.addConstraint(Sketcher.Constraint("Distance", 69, Q("6.718894 mm")))
sketch2.addConstraint(Sketcher.Constraint("Distance", 70, Q("18.277364 mm")))
sketch2.addConstraint(Sketcher.Constraint("DistanceX", -1, 1, 15, 3, Q("20.682705 mm")))
sketch2.addConstraint(Sketcher.Constraint("DistanceX", -1, 1, 23, 3, Q("36.734034 mm")))
sketch2.addConstraint(Sketcher.Constraint("DistanceX", -1, 1, 27, 3, Q("38.486593 mm")))
sketch2.addConstraint(Sketcher.Constraint("DistanceY", 27, 3, -1, 1, Q("1.662086 mm")))
sketch2.addConstraint(Sketcher.Constraint("DistanceX", -1, 1, 35, 3, Q("28.414073 mm")))
sketch2.addConstraint(Sketcher.Constraint("DistanceY", 35, 3, -1, 1, Q("26.011936 mm")))
sketch2.addConstraint(Sketcher.Constraint("DistanceX", 51, 3, -1, 1, Q("20.682705 mm")))
sketch2.addConstraint(Sketcher.Constraint("DistanceX", 63, 3, -1, 1, Q("28.414073 mm")))
sketch2.addConstraint(Sketcher.Constraint("DistanceY", -1, 1, 63, 3, Q("26.011936 mm")))
sketch2.addConstraint(Sketcher.Constraint("DistanceX", 67, 3, -1, 1, Q("38.486593 mm")))
sketch2.addConstraint(Sketcher.Constraint("DistanceY", -1, 1, 67, 3, Q("1.662086 mm")))
sketch2.addConstraint(Sketcher.Constraint("DistanceX", 71, 3, -1, 1, Q("36.734034 mm")))
sketch2.addConstraint(Sketcher.Constraint("DistanceX", 8, 2, -1, 1, Q("0.157337 mm")))
sketch2.addConstraint(Sketcher.Constraint("DistanceX", -1, 1, 9, 2, Q("6.515182 mm")))
sketch2.addConstraint(Sketcher.Constraint("DistanceX", -1, 1, 12, 2, Q("6.424658 mm")))
sketch2.addConstraint(Sketcher.Constraint("DistanceX", -1, 1, 18, 2, Q("24.895197 mm")))
sketch2.addConstraint(Sketcher.Constraint("DistanceX", -1, 1, 24, 2, Q("18.897455 mm")))
sketch2.addConstraint(Sketcher.Constraint("DistanceX", -1, 1, 28, 2, Q("18.952098 mm")))
sketch2.addConstraint(Sketcher.Constraint("DistanceY", 28, 2, -1, 1, Q("3.182002 mm")))
sketch2.addConstraint(Sketcher.Constraint("DistanceX", -1, 1, 44, 2, Q("0.157337 mm")))
sketch2.addConstraint(Sketcher.Constraint("DistanceX", 45, 2, -1, 1, Q("6.515182 mm")))
sketch2.addConstraint(Sketcher.Constraint("DistanceX", 48, 2, -1, 1, Q("6.424658 mm")))
sketch2.addConstraint(Sketcher.Constraint("DistanceX", 52, 2, -1, 1, Q("12.231744 mm")))
sketch2.addConstraint(Sketcher.Constraint("DistanceX", 56, 2, -1, 1, Q("18.952098 mm")))
sketch2.addConstraint(Sketcher.Constraint("DistanceY", -1, 1, 56, 2, Q("3.182002 mm")))
sketch2.addConstraint(Sketcher.Constraint("DistanceX", 64, 2, -1, 1, Q("18.897455 mm")))
pad2 = doc.addObject("PartDesign::Pad", "Pad001")
body.addObject(pad2)
pad2.Profile = sketch2
pad2.Length = Q("0.2 in")

doc.recompute()
